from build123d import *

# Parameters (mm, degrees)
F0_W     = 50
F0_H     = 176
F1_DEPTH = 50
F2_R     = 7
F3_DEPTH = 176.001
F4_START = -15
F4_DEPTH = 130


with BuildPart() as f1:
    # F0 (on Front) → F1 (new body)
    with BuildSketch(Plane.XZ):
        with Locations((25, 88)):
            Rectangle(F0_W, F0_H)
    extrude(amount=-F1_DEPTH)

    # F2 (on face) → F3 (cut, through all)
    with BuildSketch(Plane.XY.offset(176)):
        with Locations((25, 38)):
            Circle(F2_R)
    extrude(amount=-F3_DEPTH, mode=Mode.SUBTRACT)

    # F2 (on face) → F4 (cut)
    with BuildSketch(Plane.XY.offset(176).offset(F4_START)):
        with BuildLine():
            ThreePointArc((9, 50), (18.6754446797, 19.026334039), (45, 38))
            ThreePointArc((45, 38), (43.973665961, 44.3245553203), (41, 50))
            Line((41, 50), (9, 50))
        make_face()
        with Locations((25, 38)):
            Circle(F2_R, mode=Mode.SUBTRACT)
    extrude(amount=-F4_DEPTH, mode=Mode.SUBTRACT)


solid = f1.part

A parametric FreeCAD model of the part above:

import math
import FreeCAD as App
import Part
import Sketcher
from FreeCAD import Vector
Q = App.Units.Quantity

doc = App.newDocument("Part")
body = doc.addObject("PartDesign::Body", "Body")

sketch1 = body.newObject("Sketcher::SketchObject", "Sketch")
sketch1.AttachmentSupport = (doc.getObject("XZ_Plane"), [""])
sketch1.MapMode = "FlatFace"
sketch1.addGeometry(Part.LineSegment(Vector(0, 176, 0), Vector(0, 0, 0)), False)
sketch1.addGeometry(Part.LineSegment(Vector(0, 0, 0), Vector(50, 0, 0)), False)
sketch1.addGeometry(Part.LineSegment(Vector(50, 0, 0), Vector(50, 176, 0)), False)
sketch1.addGeometry(Part.LineSegment(Vector(50, 176, 0), Vector(0, 176, 0)), False)
sketch1.addConstraint(Sketcher.Constraint("Coincident", 0, 2, 1, 1))
sketch1.addConstraint(Sketcher.Constraint("Coincident", 1, 2, 2, 1))
sketch1.addConstraint(Sketcher.Constraint("Coincident", 2, 2, 3, 1))
sketch1.addConstraint(Sketcher.Constraint("Coincident", 3, 2, 0, 1))
sketch1.addConstraint(Sketcher.Constraint("Vertical", 0))
sketch1.addConstraint(Sketcher.Constraint("Horizontal", 1))
sketch1.addConstraint(Sketcher.Constraint("Vertical", 2))
sketch1.addConstraint(Sketcher.Constraint("Horizontal", 3))
sketch1.addConstraint(Sketcher.Constraint("Coincident", 0, 2, -1, 1))
sketch1.addConstraint(Sketcher.Constraint("DistanceX", 1, 1, 1, 2, Q("50 mm")))
sketch1.addConstraint(Sketcher.Constraint("DistanceY", 0, 2, 0, 1, Q("176 mm")))
pad1 = body.newObject("PartDesign::Pad", "Pad")
pad1.Profile = sketch1
pad1.Length = 50
pad1.Reversed = True

sketch2 = body.newObject("Sketcher::SketchObject", "Sketch001")
sketch2.AttachmentSupport = (doc.getObject("XY_Plane"), [""])
sketch2.MapMode = "FlatFace"
sketch2.AttachmentOffset = App.Placement(Vector(0, 0, 176), App.Rotation())
sketch2.addGeometry(Part.Circle(Vector(25, 38, 0), Vector(0, 0, 1), 7), False)
sketch2.addConstraint(Sketcher.Constraint("Diameter", 0, Q("14 mm")))
sketch2.addConstraint(Sketcher.Constraint("DistanceX", -1, 1, 0, 3, Q("25 mm")))
sketch2.addConstraint(Sketcher.Constraint("DistanceY", -1, 1, 0, 3, Q("38 mm")))
pocket1 = body.newObject("PartDesign::Pocket", "Pocket")
pocket1.Profile = sketch2
pocket1.Type = "ThroughAll"

sketch3 = body.newObject("Sketcher::SketchObject", "Sketch002")
sketch3.AttachmentSupport = (doc.getObject("XY_Plane"), [""])
sketch3.MapMode = "FlatFace"
sketch3.AttachmentOffset = App.Placement(Vector(0, 0, 161), App.Rotation())
sketch3.addGeometry(Part.ArcOfCircle(Part.Circle(Vector(25, 38, 0), Vector(0, 0, 1), 20), math.radians(143.130102), math.radians(360)), False)
sketch3.addGeometry(Part.ArcOfCircle(Part.Circle(Vector(25, 38, 0), Vector(0, 0, 1), 20), math.radians(0), math.radians(36.869898)), False)
sketch3.addGeometry(Part.LineSegment(Vector(41, 50, 0), Vector(9, 50, 0)), False)
sketch3.addGeometry(Part.Circle(Vector(25, 38, 0), Vector(0, 0, 1), 7), False)
sketch3.addConstraint(Sketcher.Constraint("Tangent", 0, 2, 1, 1))
sketch3.addConstraint(Sketcher.Constraint("Coincident", 1, 2, 2, 1))
sketch3.addConstraint(Sketcher.Constraint("Coincident", 2, 2, 0, 1))
sketch3.addConstraint(Sketcher.Constraint("Horizontal", 2))
sketch3.addConstraint(Sketcher.Constraint("Coincident", 3, 3, 0, 3))
sketch3.addConstraint(Sketcher.Constraint("Equal", 0, 1))
sketch3.addConstraint(Sketcher.Constraint("Horizontal", 3, 3, 0, 2))
sketch3.addConstraint(Sketcher.Constraint("Diameter", 3, Q("14 mm")))
sketch3.addConstraint(Sketcher.Constraint("Radius", 0, Q("20 mm")))
sketch3.addConstraint(Sketcher.Constraint("DistanceX", 2, 2, 2, 1, Q("32 mm")))
sketch3.addConstraint(Sketcher.Constraint("DistanceX", -1, 1, 0, 3, Q("25 mm")))
sketch3.addConstraint(Sketcher.Constraint("DistanceY", -1, 1, 0, 3, Q("38 mm")))
pocket2 = body.newObject("PartDesign::Pocket", "Pocket001")
pocket2.Profile = sketch3
pocket2.Length = 130

doc.recompute()
